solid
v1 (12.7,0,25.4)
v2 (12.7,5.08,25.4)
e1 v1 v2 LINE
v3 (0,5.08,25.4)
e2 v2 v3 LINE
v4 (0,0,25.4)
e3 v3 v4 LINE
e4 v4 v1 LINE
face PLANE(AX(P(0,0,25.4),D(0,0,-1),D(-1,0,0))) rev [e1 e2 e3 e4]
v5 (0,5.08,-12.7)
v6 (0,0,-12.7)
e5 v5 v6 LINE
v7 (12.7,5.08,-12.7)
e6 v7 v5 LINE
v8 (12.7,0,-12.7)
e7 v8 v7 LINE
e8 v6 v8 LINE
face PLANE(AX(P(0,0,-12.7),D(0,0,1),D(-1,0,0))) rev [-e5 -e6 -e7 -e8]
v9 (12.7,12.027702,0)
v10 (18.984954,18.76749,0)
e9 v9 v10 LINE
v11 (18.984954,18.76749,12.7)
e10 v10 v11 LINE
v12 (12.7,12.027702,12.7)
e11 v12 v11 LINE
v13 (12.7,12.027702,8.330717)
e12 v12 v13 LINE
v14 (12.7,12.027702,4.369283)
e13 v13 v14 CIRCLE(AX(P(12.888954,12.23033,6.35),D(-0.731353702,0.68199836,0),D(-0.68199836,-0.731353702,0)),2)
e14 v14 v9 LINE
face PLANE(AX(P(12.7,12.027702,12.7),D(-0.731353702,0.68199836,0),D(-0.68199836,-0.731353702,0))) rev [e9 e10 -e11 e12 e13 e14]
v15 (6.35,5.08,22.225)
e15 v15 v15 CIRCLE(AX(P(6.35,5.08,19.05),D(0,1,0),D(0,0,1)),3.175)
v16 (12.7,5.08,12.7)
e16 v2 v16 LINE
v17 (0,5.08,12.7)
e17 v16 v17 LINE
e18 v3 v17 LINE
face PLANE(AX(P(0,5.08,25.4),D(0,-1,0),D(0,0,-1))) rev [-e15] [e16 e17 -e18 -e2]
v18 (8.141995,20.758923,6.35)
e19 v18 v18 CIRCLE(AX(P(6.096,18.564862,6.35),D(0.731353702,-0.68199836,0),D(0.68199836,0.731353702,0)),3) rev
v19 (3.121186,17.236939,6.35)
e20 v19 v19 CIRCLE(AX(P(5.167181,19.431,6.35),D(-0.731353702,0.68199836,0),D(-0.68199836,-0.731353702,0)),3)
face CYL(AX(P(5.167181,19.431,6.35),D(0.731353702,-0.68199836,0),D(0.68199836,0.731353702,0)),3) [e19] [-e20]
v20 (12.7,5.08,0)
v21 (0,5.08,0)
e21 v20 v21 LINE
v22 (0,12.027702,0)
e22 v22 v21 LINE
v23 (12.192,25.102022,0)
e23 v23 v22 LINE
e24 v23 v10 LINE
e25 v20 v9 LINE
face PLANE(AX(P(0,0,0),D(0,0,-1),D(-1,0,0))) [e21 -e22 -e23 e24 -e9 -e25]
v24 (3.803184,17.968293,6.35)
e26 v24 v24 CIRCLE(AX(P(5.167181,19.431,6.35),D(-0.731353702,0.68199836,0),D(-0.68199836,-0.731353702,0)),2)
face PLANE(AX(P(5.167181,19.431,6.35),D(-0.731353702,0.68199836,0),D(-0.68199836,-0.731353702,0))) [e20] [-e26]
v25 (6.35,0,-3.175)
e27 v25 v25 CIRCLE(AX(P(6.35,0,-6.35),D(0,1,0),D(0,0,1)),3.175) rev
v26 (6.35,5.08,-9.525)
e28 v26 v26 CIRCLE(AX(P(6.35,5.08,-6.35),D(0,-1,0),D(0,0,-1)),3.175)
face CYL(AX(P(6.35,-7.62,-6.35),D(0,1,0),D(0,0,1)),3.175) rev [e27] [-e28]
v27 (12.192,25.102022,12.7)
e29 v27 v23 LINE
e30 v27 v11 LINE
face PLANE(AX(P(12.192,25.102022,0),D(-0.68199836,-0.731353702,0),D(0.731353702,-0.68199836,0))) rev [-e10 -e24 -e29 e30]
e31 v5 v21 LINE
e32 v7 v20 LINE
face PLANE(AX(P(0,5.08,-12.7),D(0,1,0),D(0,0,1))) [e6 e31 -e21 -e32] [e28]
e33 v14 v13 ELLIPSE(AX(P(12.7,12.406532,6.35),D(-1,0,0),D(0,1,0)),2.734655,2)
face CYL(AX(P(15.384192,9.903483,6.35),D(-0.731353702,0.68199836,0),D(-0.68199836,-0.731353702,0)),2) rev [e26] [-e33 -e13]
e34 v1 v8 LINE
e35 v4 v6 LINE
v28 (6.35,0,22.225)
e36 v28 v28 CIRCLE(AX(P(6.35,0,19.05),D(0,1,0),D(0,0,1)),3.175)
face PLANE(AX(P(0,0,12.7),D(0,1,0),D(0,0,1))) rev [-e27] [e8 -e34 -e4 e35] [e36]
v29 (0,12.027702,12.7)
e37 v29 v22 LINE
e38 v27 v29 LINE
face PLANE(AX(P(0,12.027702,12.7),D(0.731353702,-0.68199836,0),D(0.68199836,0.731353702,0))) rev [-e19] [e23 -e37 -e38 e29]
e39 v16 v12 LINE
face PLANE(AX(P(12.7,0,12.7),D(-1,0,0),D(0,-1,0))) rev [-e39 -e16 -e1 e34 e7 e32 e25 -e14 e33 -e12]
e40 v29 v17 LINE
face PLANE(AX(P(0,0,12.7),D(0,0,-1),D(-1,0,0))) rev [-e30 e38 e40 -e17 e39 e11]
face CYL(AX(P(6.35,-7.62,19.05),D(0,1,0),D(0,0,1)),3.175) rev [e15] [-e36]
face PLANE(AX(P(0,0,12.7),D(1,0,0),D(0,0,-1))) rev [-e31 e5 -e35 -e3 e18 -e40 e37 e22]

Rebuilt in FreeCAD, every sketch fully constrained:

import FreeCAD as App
import Part
import Sketcher
Q = App.Units.Quantity


def add_polygon(sketch, points):
    """Adds a closed chain of lines whose ends are joined by coincident constraints."""
    first, n = sketch.GeometryCount, len(points)
    for a, b in zip(points, points[1:] + points[:1]):
        sketch.addGeometry(Part.LineSegment(App.Vector(*a, 0), App.Vector(*b, 0)), False)
    for i in range(n):
        sketch.addConstraint(Sketcher.Constraint("Coincident", first + i, 2, first + (i + 1) % n, 1))

doc = App.newDocument("Part")
body = doc.addObject("PartDesign::Body", "Body")

sketch1 = body.newObject("Sketcher::SketchObject", "Sketch")
sketch1.AttachmentSupport = (doc.getObject("XY_Plane"), [""])
sketch1.MapMode = "FlatFace"
add_polygon(sketch1, [(12, 25), (0, 12), (0, 0), (13, 0), (13, 12), (25, 25)])
sketch1.addConstraint(Sketcher.Constraint("Vertical", 1))
sketch1.addConstraint(Sketcher.Constraint("Horizontal", 2))
sketch1.addConstraint(Sketcher.Constraint("Vertical", 3))
sketch1.addConstraint(Sketcher.Constraint("Horizontal", 5))
sketch1.addConstraint(Sketcher.Constraint("Coincident", 1, 2, -1, 1))
sketch1.addConstraint(Sketcher.Constraint("Parallel", 0, 4))
sketch1.addConstraint(Sketcher.Constraint("Horizontal", 0, 2, 3, 2))
sketch1.addConstraint(Sketcher.Constraint("DistanceX", 2, 1, 2, 2, Q("0.5 in")))
sketch1.addConstraint(Sketcher.Constraint("Angle", 0, Q("-133 deg")))
sketch1.addConstraint(Sketcher.Constraint("DistanceX", -1, 1, 4, 2, Q("0.98 in")))
sketch1.addConstraint(Sketcher.Constraint("DistanceY", 1, 2, 1, 1, 12.027702))
pad1 = body.newObject("PartDesign::Pad", "Pad")
pad1.Profile = sketch1
pad1.Length = Q("0.5 in")

sketch2 = body.newObject("Sketcher::SketchObject", "Sketch001")
sketch2.Placement = App.Placement(App.Vector(-5.999202, 5.594346, 0), App.Rotation(App.Vector(0, 0, 1), App.Vector(0.68199836, 0.731353702, 0), App.Vector(-0.731353702, 0.68199836, 0), "ZXY"))
sketch2.addGeometry(Part.Circle(App.Vector(6.3, 17.7, 0), App.Vector(0, 0, 1), 2), False)
sketch2.addConstraint(Sketcher.Constraint("Diameter", 0, 4.0))
sketch2.addConstraint(Sketcher.Constraint("DistanceX", -1, 1, 0, 3, Q("0.25 in")))
sketch2.addConstraint(Sketcher.Constraint("DistanceY", -1, 1, 0, 3, 17.734943))
pocket1 = body.newObject("PartDesign::Pocket", "Pocket")
pocket1.Profile = sketch2
pocket1.Length = Q("0.5 in")

sketch3 = body.newObject("Sketcher::SketchObject", "Sketch002")
sketch3.AttachmentSupport = (doc.getObject("XY_Plane"), [""])
sketch3.MapMode = "FlatFace"
sketch3.AttachmentOffset = App.Placement(App.Vector(0, 0, 0.5 * 25.4), App.Rotation())
add_polygon(sketch3, [(12, 25), (19, 19), (25, 25)])
sketch3.addConstraint(Sketcher.Constraint("Horizontal", 2))
sketch3.addConstraint(Sketcher.Constraint("Perpendicular", 0, 1))
sketch3.addConstraint(Sketcher.Constraint("DistanceX", 2, 2, 2, 1, Q("0.5 in")))
sketch3.addConstraint(Sketcher.Constraint("Angle", 0, Q("-43 deg")))
sketch3.addConstraint(Sketcher.Constraint("DistanceX", -1, 1, 1, 2, Q("0.98 in")))
sketch3.addConstraint(Sketcher.Constraint("DistanceY", -1, 1, 0, 2, 18.76749))
pocket2 = body.newObject("PartDesign::Pocket", "Pocket001")
pocket2.Profile = sketch3
pocket2.Length = Q("0.5 in")

sketch4 = body.newObject("Sketcher::SketchObject", "Sketch003")
sketch4.AttachmentSupport = (doc.getObject("XY_Plane"), [""])
sketch4.MapMode = "FlatFace"
sketch4.AttachmentOffset = App.Placement(App.Vector(0, 0, 0.5 * 25.4), App.Rotation())
add_polygon(sketch4, [(0, 5), (0, 0), (13, 0), (13, 5)])
sketch4.addConstraint(Sketcher.Constraint("Vertical", 0))
sketch4.addConstraint(Sketcher.Constraint("Horizontal", 1))
sketch4.addConstraint(Sketcher.Constraint("Vertical", 2))
sketch4.addConstraint(Sketcher.Constraint("Horizontal", 3))
sketch4.addConstraint(Sketcher.Constraint("Coincident", 0, 2, -1, 1))
sketch4.addConstraint(Sketcher.Constraint("DistanceX", 1, 1, 1, 2, Q("0.5 in")))
sketch4.addConstraint(Sketcher.Constraint("DistanceY", 0, 2, 0, 1, Q("0.2 in")))
pad2 = body.newObject("PartDesign::Pad", "Pad001")
pad2.Profile = sketch4
pad2.Length = Q("0.5 in")

sketch5 = body.newObject("Sketcher::SketchObject", "Sketch004")
sketch5.AttachmentSupport = (doc.getObject("XZ_Plane"), [""])
sketch5.MapMode = "FlatFace"
sketch5.AttachmentOffset = App.Placement(App.Vector(0, 0, -0.2 * 25.4), App.Rotation())
sketch5.addGeometry(Part.Circle(App.Vector(6.3, 19.1, 0), App.Vector(0, 0, 1), 3.2), False)
sketch5.addConstraint(Sketcher.Constraint("Diameter", 0, Q("0.25 in")))
sketch5.addConstraint(Sketcher.Constraint("DistanceX", -1, 1, 0, 3, Q("0.25 in")))
sketch5.addConstraint(Sketcher.Constraint("DistanceY", -1, 1, 0, 3, Q("0.75 in")))
pocket3 = body.newObject("PartDesign::Pocket", "Pocket002")
pocket3.Profile = sketch5
pocket3.Length = Q("0.5 in")
pocket3.Reversed = True
doc.recompute()

datumplane = body.newObject("PartDesign::Plane", "DatumPlane")
datumplane.AttachmentSupport = (doc.getObject("XY_Plane"), [""])
datumplane.MapMode = "FlatFace"
datumplane.AttachmentOffset = App.Placement(App.Vector(0, 0, 0.25 * 25.4), App.Rotation())
mirrored = body.newObject("PartDesign::Mirrored", "Mirrored")
mirrored.Originals = [pad2, pocket3]
mirrored.MirrorPlane = (datumplane, [""])
body.Tip = mirrored

sketch6 = body.newObject("Sketcher::SketchObject", "Sketch005")
sketch6.Placement = App.Placement(App.Vector(-5.999202, 5.594346, 0), App.Rotation(App.Vector(0, 0, 1), App.Vector(0.68199836, 0.731353702, 0), App.Vector(-0.731353702, 0.68199836, 0), "ZXY"))
sketch6.addGeometry(Part.Circle(App.Vector(6.3, 17.7, 0), App.Vector(0, 0, 1), 3), False)
sketch6.addGeometry(Part.Circle(App.Vector(6.3, 17.7, 0), App.Vector(0, 0, 1), 2), False)
sketch6.addConstraint(Sketcher.Constraint("Coincident", 1, 3, 0, 3))
sketch6.addConstraint(Sketcher.Constraint("Diameter", 0, 6.0))
sketch6.addConstraint(Sketcher.Constraint("Diameter", 1, 4.0))
sketch6.addConstraint(Sketcher.Constraint("DistanceX", -1, 1, 0, 3, Q("0.25 in")))
sketch6.addConstraint(Sketcher.Constraint("DistanceY", -1, 1, 0, 3, 17.734943))
pad3 = body.newObject("PartDesign::Pad", "Pad002")
pad3.Profile = sketch6
pad3.Length = Q("0.05 in")

doc.recompute()
